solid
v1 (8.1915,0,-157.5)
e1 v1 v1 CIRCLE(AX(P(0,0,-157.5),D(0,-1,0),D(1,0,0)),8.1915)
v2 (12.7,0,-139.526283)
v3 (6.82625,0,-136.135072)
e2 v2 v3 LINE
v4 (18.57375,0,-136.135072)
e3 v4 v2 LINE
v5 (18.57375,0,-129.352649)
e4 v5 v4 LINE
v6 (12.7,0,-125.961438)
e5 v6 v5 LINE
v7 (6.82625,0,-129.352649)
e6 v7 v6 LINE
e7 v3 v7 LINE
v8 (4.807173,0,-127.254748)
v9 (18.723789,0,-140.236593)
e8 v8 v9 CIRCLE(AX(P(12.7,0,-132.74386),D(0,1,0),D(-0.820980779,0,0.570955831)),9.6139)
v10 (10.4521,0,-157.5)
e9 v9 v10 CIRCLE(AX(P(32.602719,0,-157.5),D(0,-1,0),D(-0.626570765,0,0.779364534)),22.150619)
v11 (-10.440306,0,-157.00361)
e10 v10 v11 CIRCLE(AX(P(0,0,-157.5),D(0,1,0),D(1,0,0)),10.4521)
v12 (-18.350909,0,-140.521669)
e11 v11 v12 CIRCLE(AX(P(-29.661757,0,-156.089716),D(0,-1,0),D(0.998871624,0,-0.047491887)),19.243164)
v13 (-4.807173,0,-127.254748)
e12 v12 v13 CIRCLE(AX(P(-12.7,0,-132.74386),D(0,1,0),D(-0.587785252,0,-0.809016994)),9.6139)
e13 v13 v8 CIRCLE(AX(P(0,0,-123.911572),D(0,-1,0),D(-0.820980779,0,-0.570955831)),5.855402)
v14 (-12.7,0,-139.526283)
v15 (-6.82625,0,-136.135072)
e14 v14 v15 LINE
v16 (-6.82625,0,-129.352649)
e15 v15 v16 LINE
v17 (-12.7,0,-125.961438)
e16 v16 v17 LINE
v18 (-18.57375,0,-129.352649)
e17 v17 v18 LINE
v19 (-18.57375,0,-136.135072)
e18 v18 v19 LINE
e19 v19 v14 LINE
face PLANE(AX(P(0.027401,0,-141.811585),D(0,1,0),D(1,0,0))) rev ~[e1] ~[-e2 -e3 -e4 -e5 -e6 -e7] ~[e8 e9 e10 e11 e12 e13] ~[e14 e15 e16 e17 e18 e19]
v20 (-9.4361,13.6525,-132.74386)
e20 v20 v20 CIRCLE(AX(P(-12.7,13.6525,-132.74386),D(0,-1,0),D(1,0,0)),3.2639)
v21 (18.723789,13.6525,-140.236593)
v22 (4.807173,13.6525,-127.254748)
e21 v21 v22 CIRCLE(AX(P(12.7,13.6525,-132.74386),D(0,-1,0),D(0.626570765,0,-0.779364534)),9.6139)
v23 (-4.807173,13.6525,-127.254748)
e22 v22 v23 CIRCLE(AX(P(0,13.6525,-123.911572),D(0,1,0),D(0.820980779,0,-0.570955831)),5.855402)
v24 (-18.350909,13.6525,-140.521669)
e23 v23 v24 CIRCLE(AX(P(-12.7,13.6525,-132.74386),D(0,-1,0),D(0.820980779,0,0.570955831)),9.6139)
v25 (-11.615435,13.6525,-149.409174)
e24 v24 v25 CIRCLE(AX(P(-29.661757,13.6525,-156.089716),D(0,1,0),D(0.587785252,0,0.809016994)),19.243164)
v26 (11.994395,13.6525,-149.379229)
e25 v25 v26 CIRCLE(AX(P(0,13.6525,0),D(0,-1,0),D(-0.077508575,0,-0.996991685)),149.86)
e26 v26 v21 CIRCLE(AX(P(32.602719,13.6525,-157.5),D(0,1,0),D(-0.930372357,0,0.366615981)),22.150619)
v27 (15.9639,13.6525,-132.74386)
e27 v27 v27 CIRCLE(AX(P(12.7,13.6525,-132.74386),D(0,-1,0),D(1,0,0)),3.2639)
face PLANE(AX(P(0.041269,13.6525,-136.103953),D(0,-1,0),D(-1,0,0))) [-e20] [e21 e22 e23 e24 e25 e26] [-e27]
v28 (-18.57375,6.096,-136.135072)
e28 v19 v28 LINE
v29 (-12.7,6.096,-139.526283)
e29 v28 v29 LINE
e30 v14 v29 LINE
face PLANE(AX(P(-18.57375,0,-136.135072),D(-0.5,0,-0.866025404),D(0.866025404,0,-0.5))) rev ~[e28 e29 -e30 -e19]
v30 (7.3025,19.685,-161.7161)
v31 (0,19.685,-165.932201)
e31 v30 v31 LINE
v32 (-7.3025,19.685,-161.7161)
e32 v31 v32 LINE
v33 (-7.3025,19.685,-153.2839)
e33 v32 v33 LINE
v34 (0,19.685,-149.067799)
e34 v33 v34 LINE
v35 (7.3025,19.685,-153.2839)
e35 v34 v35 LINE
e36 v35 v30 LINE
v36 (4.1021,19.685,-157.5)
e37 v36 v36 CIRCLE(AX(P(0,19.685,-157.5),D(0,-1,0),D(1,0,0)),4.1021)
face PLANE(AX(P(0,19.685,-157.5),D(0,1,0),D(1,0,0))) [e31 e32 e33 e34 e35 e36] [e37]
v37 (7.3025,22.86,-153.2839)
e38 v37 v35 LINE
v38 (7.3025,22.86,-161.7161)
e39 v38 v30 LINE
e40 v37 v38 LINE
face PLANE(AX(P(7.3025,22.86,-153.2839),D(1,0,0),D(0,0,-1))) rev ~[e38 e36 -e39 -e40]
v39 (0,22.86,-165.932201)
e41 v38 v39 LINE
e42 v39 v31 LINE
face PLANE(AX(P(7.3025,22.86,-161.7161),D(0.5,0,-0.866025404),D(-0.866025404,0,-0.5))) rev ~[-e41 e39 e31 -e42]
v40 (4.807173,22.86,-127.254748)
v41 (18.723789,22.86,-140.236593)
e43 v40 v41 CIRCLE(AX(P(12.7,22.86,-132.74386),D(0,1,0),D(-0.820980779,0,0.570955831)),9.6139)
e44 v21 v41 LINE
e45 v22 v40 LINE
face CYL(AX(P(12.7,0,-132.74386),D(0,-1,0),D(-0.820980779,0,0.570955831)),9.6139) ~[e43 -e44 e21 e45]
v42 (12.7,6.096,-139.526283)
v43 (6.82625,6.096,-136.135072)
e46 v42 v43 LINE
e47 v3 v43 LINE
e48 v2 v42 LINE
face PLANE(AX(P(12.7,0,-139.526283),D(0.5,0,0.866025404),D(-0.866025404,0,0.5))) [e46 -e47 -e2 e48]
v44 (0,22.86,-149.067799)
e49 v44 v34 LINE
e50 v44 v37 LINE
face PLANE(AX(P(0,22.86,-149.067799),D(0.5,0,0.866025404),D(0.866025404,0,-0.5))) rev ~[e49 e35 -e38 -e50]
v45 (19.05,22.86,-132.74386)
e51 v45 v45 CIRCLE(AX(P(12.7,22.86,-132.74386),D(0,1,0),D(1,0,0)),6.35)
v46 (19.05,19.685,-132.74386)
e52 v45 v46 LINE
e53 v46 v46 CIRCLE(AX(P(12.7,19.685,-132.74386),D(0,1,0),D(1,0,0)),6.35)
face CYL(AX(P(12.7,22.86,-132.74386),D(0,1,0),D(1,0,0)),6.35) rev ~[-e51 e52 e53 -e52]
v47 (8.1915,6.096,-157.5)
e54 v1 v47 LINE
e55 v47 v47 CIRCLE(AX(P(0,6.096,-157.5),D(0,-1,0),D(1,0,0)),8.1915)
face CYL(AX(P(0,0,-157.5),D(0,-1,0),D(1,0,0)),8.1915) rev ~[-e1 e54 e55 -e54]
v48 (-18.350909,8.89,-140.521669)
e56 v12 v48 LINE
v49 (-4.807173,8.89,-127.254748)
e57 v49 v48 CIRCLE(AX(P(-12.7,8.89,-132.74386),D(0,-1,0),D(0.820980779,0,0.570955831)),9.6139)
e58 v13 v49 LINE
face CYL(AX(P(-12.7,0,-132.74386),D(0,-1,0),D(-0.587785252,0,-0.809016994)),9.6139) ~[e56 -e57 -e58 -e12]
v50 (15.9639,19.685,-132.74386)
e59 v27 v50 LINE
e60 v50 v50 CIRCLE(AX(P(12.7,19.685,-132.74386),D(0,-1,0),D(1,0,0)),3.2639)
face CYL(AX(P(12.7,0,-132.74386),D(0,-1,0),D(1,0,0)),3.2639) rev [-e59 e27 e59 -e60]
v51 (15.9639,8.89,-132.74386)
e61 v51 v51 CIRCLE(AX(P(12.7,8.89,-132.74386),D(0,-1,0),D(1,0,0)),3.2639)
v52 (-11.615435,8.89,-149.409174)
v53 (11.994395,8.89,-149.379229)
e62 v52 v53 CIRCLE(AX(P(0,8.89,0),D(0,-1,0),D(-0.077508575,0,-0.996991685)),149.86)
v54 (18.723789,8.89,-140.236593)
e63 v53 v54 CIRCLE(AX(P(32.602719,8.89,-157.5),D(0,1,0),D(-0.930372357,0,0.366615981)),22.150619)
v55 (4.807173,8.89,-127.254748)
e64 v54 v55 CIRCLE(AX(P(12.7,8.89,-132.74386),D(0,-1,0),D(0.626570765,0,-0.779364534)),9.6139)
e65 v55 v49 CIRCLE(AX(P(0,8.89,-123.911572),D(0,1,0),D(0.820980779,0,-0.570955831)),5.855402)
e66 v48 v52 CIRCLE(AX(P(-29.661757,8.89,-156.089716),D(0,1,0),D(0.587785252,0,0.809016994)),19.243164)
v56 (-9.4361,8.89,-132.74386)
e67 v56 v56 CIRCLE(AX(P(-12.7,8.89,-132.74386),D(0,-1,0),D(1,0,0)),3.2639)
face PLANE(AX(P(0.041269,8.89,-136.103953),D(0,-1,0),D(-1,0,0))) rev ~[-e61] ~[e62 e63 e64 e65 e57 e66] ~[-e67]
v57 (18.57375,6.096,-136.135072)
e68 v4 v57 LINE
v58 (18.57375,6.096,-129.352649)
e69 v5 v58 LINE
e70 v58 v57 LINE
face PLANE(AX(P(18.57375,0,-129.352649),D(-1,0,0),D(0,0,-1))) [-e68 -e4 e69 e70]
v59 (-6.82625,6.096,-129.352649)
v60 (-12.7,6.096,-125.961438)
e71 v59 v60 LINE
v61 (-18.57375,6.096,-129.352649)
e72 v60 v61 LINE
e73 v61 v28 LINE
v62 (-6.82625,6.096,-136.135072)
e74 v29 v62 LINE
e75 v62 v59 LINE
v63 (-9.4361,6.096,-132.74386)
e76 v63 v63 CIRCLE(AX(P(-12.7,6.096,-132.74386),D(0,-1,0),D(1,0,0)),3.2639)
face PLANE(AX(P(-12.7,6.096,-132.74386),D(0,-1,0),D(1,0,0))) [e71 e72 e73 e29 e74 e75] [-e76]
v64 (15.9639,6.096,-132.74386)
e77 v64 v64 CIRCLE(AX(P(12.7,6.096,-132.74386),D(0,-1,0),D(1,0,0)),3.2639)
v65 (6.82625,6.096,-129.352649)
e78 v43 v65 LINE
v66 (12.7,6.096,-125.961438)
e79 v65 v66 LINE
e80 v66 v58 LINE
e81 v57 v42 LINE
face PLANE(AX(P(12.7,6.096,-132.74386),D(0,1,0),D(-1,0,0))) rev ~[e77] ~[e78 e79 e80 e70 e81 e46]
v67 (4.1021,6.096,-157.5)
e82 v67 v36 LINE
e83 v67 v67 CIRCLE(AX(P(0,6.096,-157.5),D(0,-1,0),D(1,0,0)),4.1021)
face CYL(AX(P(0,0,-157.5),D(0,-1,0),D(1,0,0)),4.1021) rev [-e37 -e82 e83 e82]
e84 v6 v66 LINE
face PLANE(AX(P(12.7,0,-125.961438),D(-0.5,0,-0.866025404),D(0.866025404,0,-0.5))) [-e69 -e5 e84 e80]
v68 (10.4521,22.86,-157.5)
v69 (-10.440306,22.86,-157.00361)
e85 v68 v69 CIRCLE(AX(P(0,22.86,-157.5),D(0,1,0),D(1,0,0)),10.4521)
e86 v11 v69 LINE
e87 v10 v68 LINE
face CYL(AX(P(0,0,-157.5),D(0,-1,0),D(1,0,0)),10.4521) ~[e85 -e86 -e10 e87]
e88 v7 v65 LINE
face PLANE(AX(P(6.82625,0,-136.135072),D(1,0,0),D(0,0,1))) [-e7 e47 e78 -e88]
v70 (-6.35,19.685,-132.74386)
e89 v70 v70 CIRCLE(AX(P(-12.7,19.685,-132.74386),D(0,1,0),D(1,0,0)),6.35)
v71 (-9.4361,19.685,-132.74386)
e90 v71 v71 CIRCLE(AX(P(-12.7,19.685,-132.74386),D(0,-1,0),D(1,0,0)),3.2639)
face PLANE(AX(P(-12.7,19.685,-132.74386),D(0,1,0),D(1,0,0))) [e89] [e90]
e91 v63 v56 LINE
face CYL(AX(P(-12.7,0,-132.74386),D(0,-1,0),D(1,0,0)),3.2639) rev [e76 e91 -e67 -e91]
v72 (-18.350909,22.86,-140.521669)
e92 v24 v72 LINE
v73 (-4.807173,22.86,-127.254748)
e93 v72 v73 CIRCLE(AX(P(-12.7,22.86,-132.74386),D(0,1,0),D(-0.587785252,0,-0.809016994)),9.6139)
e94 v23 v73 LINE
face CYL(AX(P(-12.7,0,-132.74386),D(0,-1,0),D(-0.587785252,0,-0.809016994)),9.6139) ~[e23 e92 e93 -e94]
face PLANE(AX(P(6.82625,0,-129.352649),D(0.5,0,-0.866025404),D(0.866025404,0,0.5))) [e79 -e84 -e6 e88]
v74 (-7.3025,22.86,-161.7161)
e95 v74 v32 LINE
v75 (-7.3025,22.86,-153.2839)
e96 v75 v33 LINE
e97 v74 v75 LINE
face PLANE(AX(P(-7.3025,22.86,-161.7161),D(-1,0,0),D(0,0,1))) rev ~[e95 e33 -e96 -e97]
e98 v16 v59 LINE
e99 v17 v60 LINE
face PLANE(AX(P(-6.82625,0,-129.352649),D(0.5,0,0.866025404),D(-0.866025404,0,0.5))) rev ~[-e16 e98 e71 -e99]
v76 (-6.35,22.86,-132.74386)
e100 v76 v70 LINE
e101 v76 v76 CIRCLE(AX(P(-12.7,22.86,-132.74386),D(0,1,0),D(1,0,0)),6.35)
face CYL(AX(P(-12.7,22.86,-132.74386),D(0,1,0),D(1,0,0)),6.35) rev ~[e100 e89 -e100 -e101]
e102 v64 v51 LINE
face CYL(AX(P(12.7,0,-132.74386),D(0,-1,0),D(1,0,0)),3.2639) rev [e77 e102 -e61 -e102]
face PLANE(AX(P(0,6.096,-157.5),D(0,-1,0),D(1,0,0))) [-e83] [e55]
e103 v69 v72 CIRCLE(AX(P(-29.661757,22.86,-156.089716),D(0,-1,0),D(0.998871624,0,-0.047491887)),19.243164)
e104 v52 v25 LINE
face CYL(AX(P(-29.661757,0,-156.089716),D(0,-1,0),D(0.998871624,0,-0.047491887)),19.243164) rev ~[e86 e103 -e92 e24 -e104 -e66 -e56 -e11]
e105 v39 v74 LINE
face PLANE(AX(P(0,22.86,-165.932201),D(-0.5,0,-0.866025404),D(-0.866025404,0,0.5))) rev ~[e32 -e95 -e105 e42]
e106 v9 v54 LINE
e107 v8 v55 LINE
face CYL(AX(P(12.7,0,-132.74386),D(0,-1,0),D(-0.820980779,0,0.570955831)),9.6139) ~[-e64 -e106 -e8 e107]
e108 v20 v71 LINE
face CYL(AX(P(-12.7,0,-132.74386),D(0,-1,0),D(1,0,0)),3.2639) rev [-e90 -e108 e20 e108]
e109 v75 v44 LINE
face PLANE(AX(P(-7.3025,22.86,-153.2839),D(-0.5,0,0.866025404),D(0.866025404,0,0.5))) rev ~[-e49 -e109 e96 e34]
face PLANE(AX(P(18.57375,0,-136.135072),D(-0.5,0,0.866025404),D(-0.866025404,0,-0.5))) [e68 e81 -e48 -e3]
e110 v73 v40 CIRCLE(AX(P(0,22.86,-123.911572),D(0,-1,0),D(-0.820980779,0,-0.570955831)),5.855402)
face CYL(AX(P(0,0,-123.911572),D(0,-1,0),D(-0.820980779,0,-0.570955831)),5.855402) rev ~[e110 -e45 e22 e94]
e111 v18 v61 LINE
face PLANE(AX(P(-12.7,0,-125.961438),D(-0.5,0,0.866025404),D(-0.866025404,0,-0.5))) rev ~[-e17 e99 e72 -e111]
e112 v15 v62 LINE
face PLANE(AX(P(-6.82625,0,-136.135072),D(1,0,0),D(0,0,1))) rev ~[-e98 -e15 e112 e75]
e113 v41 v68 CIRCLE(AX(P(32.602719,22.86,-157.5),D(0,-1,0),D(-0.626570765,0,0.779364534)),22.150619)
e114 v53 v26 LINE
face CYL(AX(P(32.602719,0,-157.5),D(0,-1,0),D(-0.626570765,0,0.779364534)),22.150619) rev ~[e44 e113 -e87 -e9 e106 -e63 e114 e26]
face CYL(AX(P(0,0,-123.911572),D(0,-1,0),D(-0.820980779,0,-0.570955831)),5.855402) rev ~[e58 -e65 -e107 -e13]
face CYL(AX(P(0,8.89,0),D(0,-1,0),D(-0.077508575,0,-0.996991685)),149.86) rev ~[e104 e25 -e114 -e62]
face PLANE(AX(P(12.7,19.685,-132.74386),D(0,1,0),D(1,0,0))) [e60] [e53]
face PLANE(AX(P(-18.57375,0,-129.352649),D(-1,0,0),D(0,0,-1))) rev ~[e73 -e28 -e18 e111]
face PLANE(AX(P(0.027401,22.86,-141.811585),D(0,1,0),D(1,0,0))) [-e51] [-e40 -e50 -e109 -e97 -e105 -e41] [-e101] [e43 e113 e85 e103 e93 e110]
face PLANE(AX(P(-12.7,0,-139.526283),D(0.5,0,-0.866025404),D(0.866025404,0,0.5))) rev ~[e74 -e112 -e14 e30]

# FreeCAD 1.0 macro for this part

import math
import FreeCAD as App
import Part
import Sketcher
Q = App.Units.Quantity


def add_polygon(sketch, points):
    """Adds a closed chain of lines whose ends are joined by coincident constraints."""
    first, n = sketch.GeometryCount, len(points)
    for a, b in zip(points, points[1:] + points[:1]):
        sketch.addGeometry(Part.LineSegment(App.Vector(*a, 0), App.Vector(*b, 0)), False)
    for i in range(n):
        sketch.addConstraint(Sketcher.Constraint("Coincident", first + i, 2, first + (i + 1) % n, 1))

doc = App.newDocument("Part")
params = doc.addObject("Spreadsheet::Sheet", "Params")
for row, (alias, value) in enumerate([
    ("sketch1_diameter", "0.257 in"),
    ("sketch1_diameter2", "0.323 in"),
    ("pad1_length", "0.9 in"),
    ("sketch2_radius", "5.9 in"),
    ("pocket1_length", "0.1875 in"),
    ("sketch3_diameter", "0.645 in"),
    ("pocket2_length", "0.24 in"),
    ("sketch4_diameter", "0.5 in"),
    ("pocket3_length", "0.125 in"),
], start=1):
    params.set(f"A{row}", alias)
    params.set(f"B{row}", "=" + value)
    params.setAlias(f"B{row}", alias)

body = doc.addObject("PartDesign::Body", "Body")

# Sketch on XZ plane
sketch1 = body.newObject("Sketcher::SketchObject", "Sketch")
sketch1.AttachmentSupport = (doc.getObject("XZ_Plane"), [""])
sketch1.MapMode = "FlatFace"
sketch1.addGeometry([
    Part.ArcOfCircle(Part.Circle(App.Vector(-29.7, -156.1, 0), App.Vector(0, 0, 1), 19.2), math.radians(-3), math.radians(54)),  # 0
    Part.ArcOfCircle(Part.Circle(App.Vector(-12.7, -132.7, 0), App.Vector(0, 0, 1), 9.6), math.radians(35), math.radians(234)),  # 1
    Part.ArcOfCircle(Part.Circle(App.Vector(0, -123.9, 0), App.Vector(0, 0, 1), 5.9), math.radians(-145), math.radians(-35)),  # 2
    Part.ArcOfCircle(Part.Circle(App.Vector(12.7, -132.7, 0), App.Vector(0, 0, 1), 9.6), math.radians(-51), math.radians(145)),  # 3
    Part.ArcOfCircle(Part.Circle(App.Vector(32.6, -157.5, 0), App.Vector(0, 0, 1), 22.2), math.radians(129), math.radians(180)),  # 4
    Part.ArcOfCircle(Part.Circle(App.Vector(0, -157.5, 0), App.Vector(0, 0, 1), 10.5), math.radians(177), math.radians(360)),  # 5
    Part.Circle(App.Vector(-12.7, -132.7, 0), App.Vector(0, 0, 1), 3.3),  # 6
    Part.Circle(App.Vector(12.7, -132.7, 0), App.Vector(0, 0, 1), 3.3),  # 7
    Part.Circle(App.Vector(0, -157.5, 0), App.Vector(0, 0, 1), 4.1),  # 8
], False)
sketch1.addConstraint([
    Sketcher.Constraint("Tangent", 0, 2, 1, 2),
    Sketcher.Constraint("Tangent", 1, 1, 2, 1),
    Sketcher.Constraint("Tangent", 2, 2, 3, 2),
    Sketcher.Constraint("Tangent", 3, 1, 4, 1),
    Sketcher.Constraint("Tangent", 4, 2, 5, 2),
    Sketcher.Constraint("Tangent", 5, 1, 0, 1),
    Sketcher.Constraint("Coincident", 6, 3, 1, 3),
    Sketcher.Constraint("Coincident", 7, 3, 3, 3),
    Sketcher.Constraint("Coincident", 8, 3, 5, 3),
    Sketcher.Constraint("Equal", 1, 3),
    Sketcher.Constraint("Equal", 6, 7),
    Sketcher.Constraint("Symmetric", 1, 3, 3, 3, -2),
    Sketcher.Constraint("PointOnObject", 5, 3, -2),
    Sketcher.Constraint("Horizontal", 4, 3, 5, 3),
    Sketcher.Constraint("Diameter", 6, Q("0.257 in")),
    Sketcher.Constraint("Diameter", 8, Q("0.323 in")),
    Sketcher.Constraint("DistanceX", 1, 3, 3, 3, Q("1 in")),
    Sketcher.Constraint("Radius", 1, Q("0.3785 in")),
    Sketcher.Constraint("Radius", 5, Q("0.4115 in")),
    Sketcher.Constraint("Radius", 4, Q("22.150619 mm")),
    Sketcher.Constraint("Radius", 0, Q("19.243164 mm")),
    Sketcher.Constraint("Radius", 2, Q("5.855402 mm")),
    Sketcher.Constraint("DistanceY", 4, 3, -1, 1, Q("157.5 mm")),
])
sketch1.setExpression("Constraints[14]", "Params.sketch1_diameter")
sketch1.setExpression("Constraints[15]", "Params.sketch1_diameter2")
pad1 = body.newObject("PartDesign::Pad", "Pad")
pad1.Profile = sketch1
pad1.setExpression("Length", "Params.pad1_length")
pad1.Reversed = True

# Sketch on XZ plane
sketch2 = body.newObject("Sketcher::SketchObject", "Sketch001")
sketch2.AttachmentSupport = (doc.getObject("XZ_Plane"), [""])
sketch2.MapMode = "FlatFace"
sketch2.AttachmentOffset = App.Placement(App.Vector(0, 0, -0.35 * 25.4), App.Rotation())
sketch2.addGeometry([
    Part.ArcOfCircle(Part.Circle(App.Vector(13, -133, 0), App.Vector(0, 0, 1), 10), math.radians(-51), math.radians(145)),  # 0
    Part.ArcOfCircle(Part.Circle(App.Vector(0, -124, 0), App.Vector(0, 0, 1), 6), math.radians(-145), math.radians(-35)),  # 1
    Part.ArcOfCircle(Part.Circle(App.Vector(-13, -133, 0), App.Vector(0, 0, 1), 10), math.radians(35), math.radians(234)),  # 2
    Part.ArcOfCircle(Part.Circle(App.Vector(-30, -156, 0), App.Vector(0, 0, 1), 19), math.radians(20), math.radians(54)),  # 3
    Part.ArcOfCircle(Part.Circle(App.Vector(0, 0, 0), App.Vector(0, 0, 1), 150), math.radians(-94.45), math.radians(-85.41)),  # 4
    Part.ArcOfCircle(Part.Circle(App.Vector(33, -157, 0), App.Vector(0, 0, 1), 22), math.radians(129), math.radians(158)),  # 5
], False)
sketch2.addConstraint([
    Sketcher.Constraint("Tangent", 0, 2, 1, 2),
    Sketcher.Constraint("Tangent", 1, 1, 2, 1),
    Sketcher.Constraint("Tangent", 2, 2, 3, 2),
    Sketcher.Constraint("Coincident", 3, 1, 4, 1),
    Sketcher.Constraint("Coincident", 4, 2, 5, 2),
    Sketcher.Constraint("Tangent", 5, 1, 0, 1),
    Sketcher.Constraint("Coincident", 4, 3, -1, 1),
    Sketcher.Constraint("Equal", 0, 2),
    Sketcher.Constraint("Symmetric", 0, 3, 2, 3, -2),
    Sketcher.Constraint("Radius", 4, Q("5.9 in")),
    Sketcher.Constraint("DistanceX", 2, 3, 0, 3, Q("1 in")),
    Sketcher.Constraint("Radius", 0, Q("0.3785 in")),
    Sketcher.Constraint("Radius", 5, Q("22.150619 mm")),
    Sketcher.Constraint("Radius", 1, Q("5.855402 mm")),
    Sketcher.Constraint("Radius", 3, Q("19.243164 mm")),
    Sketcher.Constraint("DistanceY", 5, 3, -1, 1, Q("157.5 mm")),
    Sketcher.Constraint("DistanceY", 0, 3, -1, 1, Q("132.74386 mm")),
    Sketcher.Constraint("DistanceX", 2, 2, -1, 1, Q("18.350909 mm")),
])
sketch2.setExpression("Constraints[9]", "Params.sketch2_radius")
pocket1 = body.newObject("PartDesign::Pocket", "Pocket")
pocket1.Profile = sketch2
pocket1.setExpression("Length", "Params.pocket1_length")

# Sketch on XZ plane
sketch3 = body.newObject("Sketcher::SketchObject", "Sketch002")
sketch3.AttachmentSupport = (doc.getObject("XZ_Plane"), [""])
sketch3.MapMode = "FlatFace"
sketch3.addGeometry(Part.Circle(App.Vector(0, -157, 0), App.Vector(0, 0, 1), 8), False)  # 0
add_polygon(sketch3, [(-19, -129), (-19, -136), (-13, -140), (-7, -136), (-7, -129), (-13, -126)])  # lines 1-6
add_polygon(sketch3, [(19, -129), (13, -126), (7, -129), (7, -136), (13, -140), (19, -136)])  # lines 7-12
sketch3.addConstraint([
    Sketcher.Constraint("Vertical", 1),
    Sketcher.Constraint("Vertical", 4),
    Sketcher.Constraint("Vertical", 9),
    Sketcher.Constraint("Vertical", 12),
    Sketcher.Constraint("Symmetric", 5, 2, 7, 2, -2),
    Sketcher.Constraint("Symmetric", 4, 2, 8, 2, -2),
    Sketcher.Constraint("Symmetric", 2, 2, 10, 2, -2),
    Sketcher.Constraint("Symmetric", 1, 2, 11, 2, -2),
    Sketcher.Constraint("PointOnObject", 0, 3, -2),
    Sketcher.Constraint("Parallel", 2, 5),
    Sketcher.Constraint("Parallel", 3, 6),
    Sketcher.Constraint("Parallel", 5, 7),
    Sketcher.Constraint("Parallel", 6, 8),
    Sketcher.Constraint("Parallel", 7, 10),
    Sketcher.Constraint("Horizontal", 1, 2, 3, 2),
    Sketcher.Constraint("Horizontal", 4, 2, 6, 2),
    Sketcher.Constraint("Diameter", 0, Q("0.645 in")),
    Sketcher.Constraint("Angle", 2, Q("-30 deg")),
    Sketcher.Constraint("DistanceX", 5, 2, 7, 2, Q("1 in")),
    Sketcher.Constraint("DistanceX", 1, 2, 3, 2, Q("0.4625 in")),
    Sketcher.Constraint("DistanceY", 0, 3, -1, 1, Q("157.5 mm")),
    Sketcher.Constraint("DistanceY", 1, 2, 1, 1, Q("6.782422 mm")),
    Sketcher.Constraint("DistanceY", 1, 2, -1, 1, Q("136.135072 mm")),
])
sketch3.setExpression("Constraints[28]", "Params.sketch3_diameter")
pocket2 = body.newObject("PartDesign::Pocket", "Pocket001")
pocket2.Profile = sketch3
pocket2.setExpression("Length", "Params.pocket2_length")

# Sketch on XZ plane
sketch4 = body.newObject("Sketcher::SketchObject", "Sketch003")
sketch4.AttachmentSupport = (doc.getObject("XZ_Plane"), [""])
sketch4.MapMode = "FlatFace"
sketch4.AttachmentOffset = App.Placement(App.Vector(0, 0, -0.9 * 25.4), App.Rotation())
sketch4.addGeometry(Part.Circle(App.Vector(-13, -133, 0), App.Vector(0, 0, 1), 6), False)  # 0
sketch4.addGeometry(Part.Circle(App.Vector(13, -133, 0), App.Vector(0, 0, 1), 6), False)  # 1
add_polygon(sketch4, [(7, -162), (0, -166), (-7, -162), (-7, -153), (0, -149), (7, -153)])  # lines 2-7
sketch4.addConstraint([
    Sketcher.Constraint("Vertical", 4),
    Sketcher.Constraint("Vertical", 7),
    Sketcher.Constraint("Equal", 0, 1),
    Sketcher.Constraint("Symmetric", 0, 3, 1, 3, -2),
    Sketcher.Constraint("Symmetric", 4, 2, 6, 2, -2),
    Sketcher.Constraint("PointOnObject", 2, 2, -2),
    Sketcher.Constraint("PointOnObject", 5, 2, -2),
    Sketcher.Constraint("Parallel", 2, 5),
    Sketcher.Constraint("Parallel", 3, 6),
    Sketcher.Constraint("Diameter", 0, Q("0.5 in")),
    Sketcher.Constraint("Angle", 2, Q("-150 deg")),
    Sketcher.Constraint("DistanceX", 0, 3, 1, 3, Q("1 in")),
    Sketcher.Constraint("DistanceX", 4, 2, 6, 2, Q("0.575 in")),
    Sketcher.Constraint("DistanceY", 4, 1, 4, 2, Q("8.432201 mm")),
    Sketcher.Constraint("DistanceY", 2, 2, -1, 1, Q("165.932201 mm")),
    Sketcher.Constraint("DistanceY", 0, 3, -1, 1, Q("132.74386 mm")),
])
sketch4.setExpression("Constraints[15]", "Params.sketch4_diameter")
pocket3 = body.newObject("PartDesign::Pocket", "Pocket002")
pocket3.Profile = sketch4
pocket3.setExpression("Length", "Params.pocket3_length")
pocket3.Reversed = True

doc.recompute()
